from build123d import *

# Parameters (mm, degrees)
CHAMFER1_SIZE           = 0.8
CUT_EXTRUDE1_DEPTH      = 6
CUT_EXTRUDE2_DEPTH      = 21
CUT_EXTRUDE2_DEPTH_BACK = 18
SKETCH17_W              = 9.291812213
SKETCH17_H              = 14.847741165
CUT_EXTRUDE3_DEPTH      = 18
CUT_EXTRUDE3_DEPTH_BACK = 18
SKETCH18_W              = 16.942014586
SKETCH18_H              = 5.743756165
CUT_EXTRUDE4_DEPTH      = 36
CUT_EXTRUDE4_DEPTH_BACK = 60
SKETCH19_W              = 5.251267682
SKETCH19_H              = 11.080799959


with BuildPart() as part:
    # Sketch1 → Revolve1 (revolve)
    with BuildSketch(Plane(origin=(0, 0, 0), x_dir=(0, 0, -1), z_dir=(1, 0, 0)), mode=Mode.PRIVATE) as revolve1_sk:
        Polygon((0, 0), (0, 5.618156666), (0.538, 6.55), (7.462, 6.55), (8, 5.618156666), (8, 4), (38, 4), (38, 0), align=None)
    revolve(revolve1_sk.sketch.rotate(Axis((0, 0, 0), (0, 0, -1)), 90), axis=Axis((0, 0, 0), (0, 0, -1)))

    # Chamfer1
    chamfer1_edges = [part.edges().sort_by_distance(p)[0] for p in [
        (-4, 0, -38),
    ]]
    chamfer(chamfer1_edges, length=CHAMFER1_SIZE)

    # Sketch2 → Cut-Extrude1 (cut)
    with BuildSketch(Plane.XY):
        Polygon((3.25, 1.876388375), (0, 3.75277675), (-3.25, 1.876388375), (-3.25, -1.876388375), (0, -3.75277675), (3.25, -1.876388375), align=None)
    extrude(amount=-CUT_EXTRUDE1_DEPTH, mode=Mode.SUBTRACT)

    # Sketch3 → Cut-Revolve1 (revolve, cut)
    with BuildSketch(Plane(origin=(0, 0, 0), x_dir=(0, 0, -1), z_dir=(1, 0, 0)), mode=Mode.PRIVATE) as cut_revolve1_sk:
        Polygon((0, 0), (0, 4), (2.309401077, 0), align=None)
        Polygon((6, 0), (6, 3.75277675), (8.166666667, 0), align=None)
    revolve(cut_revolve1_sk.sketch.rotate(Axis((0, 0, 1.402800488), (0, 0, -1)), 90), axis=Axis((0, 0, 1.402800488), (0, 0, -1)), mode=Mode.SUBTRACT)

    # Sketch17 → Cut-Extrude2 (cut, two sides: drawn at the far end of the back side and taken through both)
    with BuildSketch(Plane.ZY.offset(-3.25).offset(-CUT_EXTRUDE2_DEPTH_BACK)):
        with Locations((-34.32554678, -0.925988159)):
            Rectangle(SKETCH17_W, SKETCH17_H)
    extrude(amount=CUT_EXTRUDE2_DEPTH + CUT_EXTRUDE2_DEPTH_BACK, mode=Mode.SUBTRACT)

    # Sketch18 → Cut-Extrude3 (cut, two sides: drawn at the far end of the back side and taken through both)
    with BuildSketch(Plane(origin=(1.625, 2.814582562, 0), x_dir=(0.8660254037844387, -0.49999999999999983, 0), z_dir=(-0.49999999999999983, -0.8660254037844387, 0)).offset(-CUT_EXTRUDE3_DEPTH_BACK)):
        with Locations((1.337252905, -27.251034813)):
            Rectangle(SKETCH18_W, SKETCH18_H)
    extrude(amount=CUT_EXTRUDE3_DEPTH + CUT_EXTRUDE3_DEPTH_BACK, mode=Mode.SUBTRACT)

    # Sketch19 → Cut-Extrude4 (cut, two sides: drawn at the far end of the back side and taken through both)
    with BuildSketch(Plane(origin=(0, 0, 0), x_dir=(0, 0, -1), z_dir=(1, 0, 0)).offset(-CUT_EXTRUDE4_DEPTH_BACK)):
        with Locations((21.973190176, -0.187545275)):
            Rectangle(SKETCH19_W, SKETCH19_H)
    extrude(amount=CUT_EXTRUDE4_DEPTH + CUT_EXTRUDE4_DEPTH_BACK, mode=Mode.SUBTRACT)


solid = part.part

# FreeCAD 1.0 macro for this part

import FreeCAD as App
import Part
import Sketcher
Q = App.Units.Quantity


def edges_at(feature, points):
    """Names of the edges that pass closest to the given points."""
    edges = feature.Shape.Edges
    near = lambda p: min(range(len(edges)), key=lambda i: edges[i].distToShape(Part.Vertex(*p))[0])
    return sorted({f"Edge{near(p) + 1}" for p in points})

doc = App.newDocument("Part")
body = doc.addObject("PartDesign::Body", "Body")

sketch1 = doc.addObject("Sketcher::SketchObject", "Sketch")
body.addObject(sketch1)
sketch1.AttachmentSupport = (doc.YZ_Plane, [""])
sketch1.MapMode = "FlatFace"
sketch1.addGeometry([
    Part.LineSegment(App.Vector(5.6, 0, 0), App.Vector(0, 0, 0)),
    Part.LineSegment(App.Vector(0, 0, 0), App.Vector(0, -38, 0)),
    Part.LineSegment(App.Vector(0, -38, 0), App.Vector(4, -38, 0)),
    Part.LineSegment(App.Vector(4, -38, 0), App.Vector(4, -8, 0)),
    Part.LineSegment(App.Vector(4, -8, 0), App.Vector(5.6, -8, 0)),
    Part.LineSegment(App.Vector(5.6, -8, 0), App.Vector(6.5, -7.5, 0)),
    Part.LineSegment(App.Vector(6.5, -7.5, 0), App.Vector(6.5, -0.5, 0)),
    Part.LineSegment(App.Vector(6.5, -0.5, 0), App.Vector(5.6, 0, 0)),
], False)
sketch1.addConstraint([
    Sketcher.Constraint("Coincident", 0, 2, 1, 1),
    Sketcher.Constraint("Coincident", 1, 2, 2, 1),
    Sketcher.Constraint("Coincident", 2, 2, 3, 1),
    Sketcher.Constraint("Coincident", 3, 2, 4, 1),
    Sketcher.Constraint("Coincident", 4, 2, 5, 1),
    Sketcher.Constraint("Coincident", 5, 2, 6, 1),
    Sketcher.Constraint("Coincident", 6, 2, 7, 1),
    Sketcher.Constraint("Coincident", 7, 2, 0, 1),
    Sketcher.Constraint("Horizontal", 0),
    Sketcher.Constraint("Vertical", 1),
    Sketcher.Constraint("Horizontal", 2),
    Sketcher.Constraint("Vertical", 3),
    Sketcher.Constraint("Horizontal", 4),
    Sketcher.Constraint("Vertical", 6),
    Sketcher.Constraint("Coincident", 0, 2, -1, 1),
    Sketcher.Constraint("Vertical", 4, 2, 7, 2),
    Sketcher.Constraint("Equal", 5, 7),
    Sketcher.Constraint("DistanceX", 2, 1, 2, 2, Q("4 mm")),
    Sketcher.Constraint("DistanceY", 1, 2, 1, 1, Q("38 mm")),
    Sketcher.Constraint("DistanceY", 3, 1, 3, 2, Q("30 mm")),
    Sketcher.Constraint("Angle", 5, Q("30 deg")),
    Sketcher.Constraint("DistanceY", 6, 1, 6, 2, Q("6.924 mm")),
    Sketcher.Constraint("DistanceX", -1, 1, 5, 2, Q("6.55 mm")),
])
revolution = doc.addObject("PartDesign::Revolution", "Revolution")
body.addObject(revolution)
revolution.Profile = sketch1
revolution.ReferenceAxis = (sketch1, ["V_Axis"])
revolution.Angle = 360
doc.recompute()

chamfer = doc.addObject("PartDesign::Chamfer", "Chamfer")
body.addObject(chamfer)
chamfer.Base = (revolution, edges_at(revolution, [(-4, 0, -38)]))
chamfer.Size = 0.8

sketch2 = doc.addObject("Sketcher::SketchObject", "Sketch001")
body.addObject(sketch2)
sketch2.AttachmentSupport = (doc.XY_Plane, [""])
sketch2.MapMode = "FlatFace"
sketch2.addGeometry([
    Part.LineSegment(App.Vector(3.2, 1.9, 0), App.Vector(0, 3.8, 0)),
    Part.LineSegment(App.Vector(0, 3.8, 0), App.Vector(-3.2, 1.9, 0)),
    Part.LineSegment(App.Vector(-3.2, 1.9, 0), App.Vector(-3.2, -1.9, 0)),
    Part.LineSegment(App.Vector(-3.2, -1.9, 0), App.Vector(0, -3.8, 0)),
    Part.LineSegment(App.Vector(0, -3.8, 0), App.Vector(3.2, -1.9, 0)),
    Part.LineSegment(App.Vector(3.2, -1.9, 0), App.Vector(3.2, 1.9, 0)),
], False)
sketch2.addConstraint([
    Sketcher.Constraint("Coincident", 0, 2, 1, 1),
    Sketcher.Constraint("Coincident", 1, 2, 2, 1),
    Sketcher.Constraint("Coincident", 2, 2, 3, 1),
    Sketcher.Constraint("Coincident", 3, 2, 4, 1),
    Sketcher.Constraint("Coincident", 4, 2, 5, 1),
    Sketcher.Constraint("Coincident", 5, 2, 0, 1),
    Sketcher.Constraint("Vertical", 2),
    Sketcher.Constraint("Vertical", 5),
    Sketcher.Constraint("Symmetric", 0, 2, 3, 2, -1, 1),
    Sketcher.Constraint("Symmetric", 1, 2, 4, 2, -1, 1),
    Sketcher.Constraint("PointOnObject", 0, 2, -2),
    Sketcher.Constraint("Parallel", 0, 3),
    Sketcher.Constraint("Horizontal", 2, 2, 4, 2),
    Sketcher.Constraint("Angle", 0, Q("150 deg")),
    Sketcher.Constraint("DistanceX", 2, 2, 4, 2, Q("6.5 mm")),
    Sketcher.Constraint("DistanceY", 2, 2, 2, 1, Q("3.752777 mm")),
])
pocket1 = doc.addObject("PartDesign::Pocket", "Pocket")
body.addObject(pocket1)
pocket1.Profile = sketch2
pocket1.Length = 6

sketch3 = doc.addObject("Sketcher::SketchObject", "Sketch002")
body.addObject(sketch3)
sketch3.AttachmentSupport = (doc.YZ_Plane, [""])
sketch3.MapMode = "FlatFace"
sketch3.addGeometry([
    Part.LineSegment(App.Vector(4, 0, 0), App.Vector(0, 0, 0)),
    Part.LineSegment(App.Vector(0, 0, 0), App.Vector(0, -2.3, 0)),
    Part.LineSegment(App.Vector(0, -2.3, 0), App.Vector(4, 0, 0)),
    Part.LineSegment(App.Vector(3.8, -6, 0), App.Vector(0, -6, 0)),
    Part.LineSegment(App.Vector(0, -6, 0), App.Vector(0, -8.2, 0)),
    Part.LineSegment(App.Vector(0, -8.2, 0), App.Vector(3.8, -6, 0)),
], False)
sketch3.addConstraint([
    Sketcher.Constraint("Coincident", 0, 2, 1, 1),
    Sketcher.Constraint("Coincident", 1, 2, 2, 1),
    Sketcher.Constraint("Coincident", 2, 2, 0, 1),
    Sketcher.Constraint("Coincident", 3, 2, 4, 1),
    Sketcher.Constraint("Coincident", 4, 2, 5, 1),
    Sketcher.Constraint("Coincident", 5, 2, 3, 1),
    Sketcher.Constraint("Horizontal", 0),
    Sketcher.Constraint("Vertical", 1),
    Sketcher.Constraint("Horizontal", 3),
    Sketcher.Constraint("Vertical", 4),
    Sketcher.Constraint("Coincident", 0, 2, -1, 1),
    Sketcher.Constraint("PointOnObject", 3, 2, -2),
    Sketcher.Constraint("Parallel", 2, 5),
    Sketcher.Constraint("DistanceX", 0, 2, 0, 1, Q("4 mm")),
    Sketcher.Constraint("Angle", 2, Q("30 deg")),
    Sketcher.Constraint("DistanceY", 3, 2, -1, 1, Q("6 mm")),
    Sketcher.Constraint("DistanceX", 3, 2, 3, 1, Q("3.752777 mm")),
])
groove = doc.addObject("PartDesign::Groove", "Groove")
body.addObject(groove)
groove.Profile = sketch3
groove.ReferenceAxis = (sketch3, ["V_Axis"])
groove.Angle = 360

sketch4 = doc.addObject("Sketcher::SketchObject", "Sketch003")
body.addObject(sketch4)
sketch4.AttachmentSupport = (doc.YZ_Plane, [""])
sketch4.MapMode = "FlatFace"
sketch4.AttachmentOffset = App.Placement(App.Vector(0, 0, 3.25), App.Rotation())
sketch4.addGeometry([
    Part.LineSegment(App.Vector(6, -39, 0), App.Vector(-8, -39, 0)),
    Part.LineSegment(App.Vector(-8, -39, 0), App.Vector(-8, -30, 0)),
    Part.LineSegment(App.Vector(-8, -30, 0), App.Vector(6, -30, 0)),
    Part.LineSegment(App.Vector(6, -30, 0), App.Vector(6, -39, 0)),
], False)
sketch4.addConstraint([
    Sketcher.Constraint("Coincident", 0, 2, 1, 1),
    Sketcher.Constraint("Coincident", 1, 2, 2, 1),
    Sketcher.Constraint("Coincident", 2, 2, 3, 1),
    Sketcher.Constraint("Coincident", 3, 2, 0, 1),
    Sketcher.Constraint("Horizontal", 0),
    Sketcher.Constraint("Vertical", 1),
    Sketcher.Constraint("Horizontal", 2),
    Sketcher.Constraint("Vertical", 3),
    Sketcher.Constraint("DistanceX", 0, 2, 0, 1, Q("14.847741 mm")),
    Sketcher.Constraint("DistanceY", 1, 1, 1, 2, Q("9.291812 mm")),
    Sketcher.Constraint("DistanceX", 0, 2, -1, 1, Q("8.349859 mm")),
    Sketcher.Constraint("DistanceY", 1, 2, -1, 1, Q("29.679641 mm")),
])
pocket2 = doc.addObject("PartDesign::Pocket", "Pocket001")
body.addObject(pocket2)
pocket2.Profile = sketch4
pocket2.Type = "ThroughAll"
pocket2.Midplane = True

sketch5 = doc.addObject("Sketcher::SketchObject", "Sketch004")
body.addObject(sketch5)
sketch5.Placement = App.Placement(App.Vector(1.625, 2.814583, 0), App.Rotation(App.Vector(0.866025404, -0.5, 0), App.Vector(0, 0, 1), App.Vector(-0.5, -0.866025404, 0), "ZXY"))
sketch5.addGeometry([
    Part.LineSegment(App.Vector(-7, -24, 0), App.Vector(-7, -30, 0)),
    Part.LineSegment(App.Vector(-7, -30, 0), App.Vector(10, -30, 0)),
    Part.LineSegment(App.Vector(10, -30, 0), App.Vector(10, -24, 0)),
    Part.LineSegment(App.Vector(10, -24, 0), App.Vector(-7, -24, 0)),
], False)
sketch5.addConstraint([
    Sketcher.Constraint("Coincident", 0, 2, 1, 1),
    Sketcher.Constraint("Coincident", 1, 2, 2, 1),
    Sketcher.Constraint("Coincident", 2, 2, 3, 1),
    Sketcher.Constraint("Coincident", 3, 2, 0, 1),
    Sketcher.Constraint("Vertical", 0),
    Sketcher.Constraint("Horizontal", 1),
    Sketcher.Constraint("Vertical", 2),
    Sketcher.Constraint("Horizontal", 3),
    Sketcher.Constraint("DistanceX", 1, 1, 1, 2, Q("16.942015 mm")),
    Sketcher.Constraint("DistanceY", 0, 2, 0, 1, Q("5.743756 mm")),
    Sketcher.Constraint("DistanceX", -1, 1, 1, 2, Q("9.80826 mm")),
    Sketcher.Constraint("DistanceY", 0, 2, -1, 1, Q("30.122913 mm")),
])
pocket3 = doc.addObject("PartDesign::Pocket", "Pocket002")
body.addObject(pocket3)
pocket3.Profile = sketch5
pocket3.Type = "ThroughAll"
pocket3.Midplane = True

sketch6 = doc.addObject("Sketcher::SketchObject", "Sketch005")
body.addObject(sketch6)
sketch6.AttachmentSupport = (doc.YZ_Plane, [""])
sketch6.MapMode = "FlatFace"
sketch6.addGeometry([
    Part.LineSegment(App.Vector(5, -19, 0), App.Vector(-6, -19, 0)),
    Part.LineSegment(App.Vector(-6, -19, 0), App.Vector(-6, -25, 0)),
    Part.LineSegment(App.Vector(-6, -25, 0), App.Vector(5, -25, 0)),
    Part.LineSegment(App.Vector(5, -25, 0), App.Vector(5, -19, 0)),
], False)
sketch6.addConstraint([
    Sketcher.Constraint("Coincident", 0, 2, 1, 1),
    Sketcher.Constraint("Coincident", 1, 2, 2, 1),
    Sketcher.Constraint("Coincident", 2, 2, 3, 1),
    Sketcher.Constraint("Coincident", 3, 2, 0, 1),
    Sketcher.Constraint("Horizontal", 0),
    Sketcher.Constraint("Vertical", 1),
    Sketcher.Constraint("Horizontal", 2),
    Sketcher.Constraint("Vertical", 3),
    Sketcher.Constraint("DistanceX", 0, 2, 0, 1, Q("11.0808 mm")),
    Sketcher.Constraint("DistanceY", 1, 2, 1, 1, Q("5.251268 mm")),
    Sketcher.Constraint("DistanceX", 0, 2, -1, 1, Q("5.727945 mm")),
    Sketcher.Constraint("DistanceY", 0, 2, -1, 1, Q("19.347556 mm")),
])
pocket4 = doc.addObject("PartDesign::Pocket", "Pocket003")
body.addObject(pocket4)
pocket4.Profile = sketch6
pocket4.Type = "ThroughAll"
pocket4.Midplane = True

doc.recompute()
